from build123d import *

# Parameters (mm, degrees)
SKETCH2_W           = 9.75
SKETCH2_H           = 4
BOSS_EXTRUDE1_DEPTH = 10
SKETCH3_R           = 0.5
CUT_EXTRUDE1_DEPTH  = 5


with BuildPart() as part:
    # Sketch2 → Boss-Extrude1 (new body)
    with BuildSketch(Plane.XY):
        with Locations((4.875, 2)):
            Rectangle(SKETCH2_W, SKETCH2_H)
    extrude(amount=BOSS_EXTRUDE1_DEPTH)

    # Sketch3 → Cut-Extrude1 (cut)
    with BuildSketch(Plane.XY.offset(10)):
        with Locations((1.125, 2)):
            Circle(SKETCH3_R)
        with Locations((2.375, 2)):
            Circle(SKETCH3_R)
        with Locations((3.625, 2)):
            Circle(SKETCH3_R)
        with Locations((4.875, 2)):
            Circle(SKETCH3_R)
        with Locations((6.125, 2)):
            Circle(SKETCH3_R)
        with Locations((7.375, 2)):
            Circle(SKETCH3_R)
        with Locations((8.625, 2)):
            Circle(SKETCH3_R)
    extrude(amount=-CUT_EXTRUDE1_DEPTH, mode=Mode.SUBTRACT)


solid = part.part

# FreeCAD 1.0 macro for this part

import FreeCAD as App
import Part
import Sketcher
from FreeCAD import Vector
Q = App.Units.Quantity

doc = App.newDocument("Part")
params = doc.addObject("Spreadsheet::Sheet", "Params")
for row, (alias, value) in enumerate([
    ("sketch1_height", "4 mm"),
    ("sketch1_width", "9.75 mm"),
    ("pad1_length", "10 mm"),
    ("sketch2_diameter", "1 mm"),
    ("pocket1_length", "5 mm"),
], start=1):
    params.set(f"A{row}", alias)
    params.set(f"B{row}", "=" + value)
    params.setAlias(f"B{row}", alias)

body = doc.addObject("PartDesign::Body", "Body")

# Sketch on XY plane
sketch1 = doc.addObject("Sketcher::SketchObject", "Sketch")
body.addObject(sketch1)
sketch1.AttachmentSupport = (doc.XY_Plane, [""])
sketch1.MapMode = "FlatFace"
sketch1.addGeometry([
    Part.LineSegment(Vector(0, 4, 0), Vector(0, 0, 0)),
    Part.LineSegment(Vector(0, 0, 0), Vector(9.75, 0, 0)),
    Part.LineSegment(Vector(9.75, 0, 0), Vector(9.75, 4, 0)),
    Part.LineSegment(Vector(9.75, 4, 0), Vector(0, 4, 0)),
], False)
sketch1.addConstraint([
    Sketcher.Constraint("Coincident", 0, 2, 1, 1),
    Sketcher.Constraint("Coincident", 1, 2, 2, 1),
    Sketcher.Constraint("Coincident", 2, 2, 3, 1),
    Sketcher.Constraint("Coincident", 3, 2, 0, 1),
    Sketcher.Constraint("Vertical", 0),
    Sketcher.Constraint("Horizontal", 1),
    Sketcher.Constraint("Vertical", 2),
    Sketcher.Constraint("Horizontal", 3),
    Sketcher.Constraint("Coincident", 0, 2, -1, 1),
    Sketcher.Constraint("DistanceY", 0, 2, 0, 1, Q("4 mm")),
    Sketcher.Constraint("DistanceX", 1, 1, 1, 2, Q("9.75 mm")),
])
sketch1.setExpression("Constraints[9]", "Params.sketch1_height")
sketch1.setExpression("Constraints[10]", "Params.sketch1_width")
pad1 = doc.addObject("PartDesign::Pad", "Pad")
body.addObject(pad1)
pad1.Profile = sketch1
pad1.setExpression("Length", "Params.pad1_length")

# Sketch on XY plane
sketch2 = doc.addObject("Sketcher::SketchObject", "Sketch001")
body.addObject(sketch2)
sketch2.AttachmentSupport = (doc.XY_Plane, [""])
sketch2.MapMode = "FlatFace"
sketch2.AttachmentOffset = App.Placement(Vector(0, 0, 10), App.Rotation())
sketch2.addGeometry([
    Part.Circle(Vector(1.125, 2, 0), Vector(0, 0, 1), 0.5),  # 0
    Part.Circle(Vector(2.375, 2, 0), Vector(0, 0, 1), 0.5),  # 1
    Part.Circle(Vector(3.625, 2, 0), Vector(0, 0, 1), 0.5),  # 2
    Part.Circle(Vector(4.875, 2, 0), Vector(0, 0, 1), 0.5),  # 3
    Part.Circle(Vector(6.125, 2, 0), Vector(0, 0, 1), 0.5),  # 4
    Part.Circle(Vector(7.375, 2, 0), Vector(0, 0, 1), 0.5),  # 5
    Part.Circle(Vector(8.625, 2, 0), Vector(0, 0, 1), 0.5),  # 6
], False)
sketch2.addConstraint([
    Sketcher.Constraint("Equal", 0, 1),
    Sketcher.Constraint("Equal", 1, 2),
    Sketcher.Constraint("Equal", 2, 3),
    Sketcher.Constraint("Equal", 3, 4),
    Sketcher.Constraint("Equal", 4, 5),
    Sketcher.Constraint("Equal", 5, 6),
    Sketcher.Constraint("Horizontal", 0, 3, 1, 3),
    Sketcher.Constraint("Horizontal", 1, 3, 2, 3),
    Sketcher.Constraint("Horizontal", 2, 3, 3, 3),
    Sketcher.Constraint("Horizontal", 3, 3, 4, 3),
    Sketcher.Constraint("Horizontal", 4, 3, 5, 3),
    Sketcher.Constraint("Horizontal", 5, 3, 6, 3),
    Sketcher.Constraint("Diameter", 0, Q("1 mm")),
    Sketcher.Constraint("DistanceY", -1, 1, 0, 3, Q("2 mm")),
    Sketcher.Constraint("DistanceX", 0, 3, 4, 3, Q("5 mm")),
    Sketcher.Constraint("DistanceX", 1, 3, 5, 3, Q("5 mm")),
    Sketcher.Constraint("DistanceX", 2, 3, 6, 3, Q("5 mm")),
    Sketcher.Constraint("DistanceX", 0, 3, 2, 3, Q("2.5 mm")),
    Sketcher.Constraint("DistanceX", 1, 3, 3, 3, Q("2.5 mm")),
    Sketcher.Constraint("DistanceX", 0, 3, 1, 3, Q("1.25 mm")),
    Sketcher.Constraint("DistanceX", -1, 1, 0, 3, Q("1.125 mm")),
])
sketch2.setExpression("Constraints[12]", "Params.sketch2_diameter")
pocket1 = doc.addObject("PartDesign::Pocket", "Pocket")
body.addObject(pocket1)
pocket1.Profile = sketch2
pocket1.setExpression("Length", "Params.pocket1_length")

doc.recompute()
